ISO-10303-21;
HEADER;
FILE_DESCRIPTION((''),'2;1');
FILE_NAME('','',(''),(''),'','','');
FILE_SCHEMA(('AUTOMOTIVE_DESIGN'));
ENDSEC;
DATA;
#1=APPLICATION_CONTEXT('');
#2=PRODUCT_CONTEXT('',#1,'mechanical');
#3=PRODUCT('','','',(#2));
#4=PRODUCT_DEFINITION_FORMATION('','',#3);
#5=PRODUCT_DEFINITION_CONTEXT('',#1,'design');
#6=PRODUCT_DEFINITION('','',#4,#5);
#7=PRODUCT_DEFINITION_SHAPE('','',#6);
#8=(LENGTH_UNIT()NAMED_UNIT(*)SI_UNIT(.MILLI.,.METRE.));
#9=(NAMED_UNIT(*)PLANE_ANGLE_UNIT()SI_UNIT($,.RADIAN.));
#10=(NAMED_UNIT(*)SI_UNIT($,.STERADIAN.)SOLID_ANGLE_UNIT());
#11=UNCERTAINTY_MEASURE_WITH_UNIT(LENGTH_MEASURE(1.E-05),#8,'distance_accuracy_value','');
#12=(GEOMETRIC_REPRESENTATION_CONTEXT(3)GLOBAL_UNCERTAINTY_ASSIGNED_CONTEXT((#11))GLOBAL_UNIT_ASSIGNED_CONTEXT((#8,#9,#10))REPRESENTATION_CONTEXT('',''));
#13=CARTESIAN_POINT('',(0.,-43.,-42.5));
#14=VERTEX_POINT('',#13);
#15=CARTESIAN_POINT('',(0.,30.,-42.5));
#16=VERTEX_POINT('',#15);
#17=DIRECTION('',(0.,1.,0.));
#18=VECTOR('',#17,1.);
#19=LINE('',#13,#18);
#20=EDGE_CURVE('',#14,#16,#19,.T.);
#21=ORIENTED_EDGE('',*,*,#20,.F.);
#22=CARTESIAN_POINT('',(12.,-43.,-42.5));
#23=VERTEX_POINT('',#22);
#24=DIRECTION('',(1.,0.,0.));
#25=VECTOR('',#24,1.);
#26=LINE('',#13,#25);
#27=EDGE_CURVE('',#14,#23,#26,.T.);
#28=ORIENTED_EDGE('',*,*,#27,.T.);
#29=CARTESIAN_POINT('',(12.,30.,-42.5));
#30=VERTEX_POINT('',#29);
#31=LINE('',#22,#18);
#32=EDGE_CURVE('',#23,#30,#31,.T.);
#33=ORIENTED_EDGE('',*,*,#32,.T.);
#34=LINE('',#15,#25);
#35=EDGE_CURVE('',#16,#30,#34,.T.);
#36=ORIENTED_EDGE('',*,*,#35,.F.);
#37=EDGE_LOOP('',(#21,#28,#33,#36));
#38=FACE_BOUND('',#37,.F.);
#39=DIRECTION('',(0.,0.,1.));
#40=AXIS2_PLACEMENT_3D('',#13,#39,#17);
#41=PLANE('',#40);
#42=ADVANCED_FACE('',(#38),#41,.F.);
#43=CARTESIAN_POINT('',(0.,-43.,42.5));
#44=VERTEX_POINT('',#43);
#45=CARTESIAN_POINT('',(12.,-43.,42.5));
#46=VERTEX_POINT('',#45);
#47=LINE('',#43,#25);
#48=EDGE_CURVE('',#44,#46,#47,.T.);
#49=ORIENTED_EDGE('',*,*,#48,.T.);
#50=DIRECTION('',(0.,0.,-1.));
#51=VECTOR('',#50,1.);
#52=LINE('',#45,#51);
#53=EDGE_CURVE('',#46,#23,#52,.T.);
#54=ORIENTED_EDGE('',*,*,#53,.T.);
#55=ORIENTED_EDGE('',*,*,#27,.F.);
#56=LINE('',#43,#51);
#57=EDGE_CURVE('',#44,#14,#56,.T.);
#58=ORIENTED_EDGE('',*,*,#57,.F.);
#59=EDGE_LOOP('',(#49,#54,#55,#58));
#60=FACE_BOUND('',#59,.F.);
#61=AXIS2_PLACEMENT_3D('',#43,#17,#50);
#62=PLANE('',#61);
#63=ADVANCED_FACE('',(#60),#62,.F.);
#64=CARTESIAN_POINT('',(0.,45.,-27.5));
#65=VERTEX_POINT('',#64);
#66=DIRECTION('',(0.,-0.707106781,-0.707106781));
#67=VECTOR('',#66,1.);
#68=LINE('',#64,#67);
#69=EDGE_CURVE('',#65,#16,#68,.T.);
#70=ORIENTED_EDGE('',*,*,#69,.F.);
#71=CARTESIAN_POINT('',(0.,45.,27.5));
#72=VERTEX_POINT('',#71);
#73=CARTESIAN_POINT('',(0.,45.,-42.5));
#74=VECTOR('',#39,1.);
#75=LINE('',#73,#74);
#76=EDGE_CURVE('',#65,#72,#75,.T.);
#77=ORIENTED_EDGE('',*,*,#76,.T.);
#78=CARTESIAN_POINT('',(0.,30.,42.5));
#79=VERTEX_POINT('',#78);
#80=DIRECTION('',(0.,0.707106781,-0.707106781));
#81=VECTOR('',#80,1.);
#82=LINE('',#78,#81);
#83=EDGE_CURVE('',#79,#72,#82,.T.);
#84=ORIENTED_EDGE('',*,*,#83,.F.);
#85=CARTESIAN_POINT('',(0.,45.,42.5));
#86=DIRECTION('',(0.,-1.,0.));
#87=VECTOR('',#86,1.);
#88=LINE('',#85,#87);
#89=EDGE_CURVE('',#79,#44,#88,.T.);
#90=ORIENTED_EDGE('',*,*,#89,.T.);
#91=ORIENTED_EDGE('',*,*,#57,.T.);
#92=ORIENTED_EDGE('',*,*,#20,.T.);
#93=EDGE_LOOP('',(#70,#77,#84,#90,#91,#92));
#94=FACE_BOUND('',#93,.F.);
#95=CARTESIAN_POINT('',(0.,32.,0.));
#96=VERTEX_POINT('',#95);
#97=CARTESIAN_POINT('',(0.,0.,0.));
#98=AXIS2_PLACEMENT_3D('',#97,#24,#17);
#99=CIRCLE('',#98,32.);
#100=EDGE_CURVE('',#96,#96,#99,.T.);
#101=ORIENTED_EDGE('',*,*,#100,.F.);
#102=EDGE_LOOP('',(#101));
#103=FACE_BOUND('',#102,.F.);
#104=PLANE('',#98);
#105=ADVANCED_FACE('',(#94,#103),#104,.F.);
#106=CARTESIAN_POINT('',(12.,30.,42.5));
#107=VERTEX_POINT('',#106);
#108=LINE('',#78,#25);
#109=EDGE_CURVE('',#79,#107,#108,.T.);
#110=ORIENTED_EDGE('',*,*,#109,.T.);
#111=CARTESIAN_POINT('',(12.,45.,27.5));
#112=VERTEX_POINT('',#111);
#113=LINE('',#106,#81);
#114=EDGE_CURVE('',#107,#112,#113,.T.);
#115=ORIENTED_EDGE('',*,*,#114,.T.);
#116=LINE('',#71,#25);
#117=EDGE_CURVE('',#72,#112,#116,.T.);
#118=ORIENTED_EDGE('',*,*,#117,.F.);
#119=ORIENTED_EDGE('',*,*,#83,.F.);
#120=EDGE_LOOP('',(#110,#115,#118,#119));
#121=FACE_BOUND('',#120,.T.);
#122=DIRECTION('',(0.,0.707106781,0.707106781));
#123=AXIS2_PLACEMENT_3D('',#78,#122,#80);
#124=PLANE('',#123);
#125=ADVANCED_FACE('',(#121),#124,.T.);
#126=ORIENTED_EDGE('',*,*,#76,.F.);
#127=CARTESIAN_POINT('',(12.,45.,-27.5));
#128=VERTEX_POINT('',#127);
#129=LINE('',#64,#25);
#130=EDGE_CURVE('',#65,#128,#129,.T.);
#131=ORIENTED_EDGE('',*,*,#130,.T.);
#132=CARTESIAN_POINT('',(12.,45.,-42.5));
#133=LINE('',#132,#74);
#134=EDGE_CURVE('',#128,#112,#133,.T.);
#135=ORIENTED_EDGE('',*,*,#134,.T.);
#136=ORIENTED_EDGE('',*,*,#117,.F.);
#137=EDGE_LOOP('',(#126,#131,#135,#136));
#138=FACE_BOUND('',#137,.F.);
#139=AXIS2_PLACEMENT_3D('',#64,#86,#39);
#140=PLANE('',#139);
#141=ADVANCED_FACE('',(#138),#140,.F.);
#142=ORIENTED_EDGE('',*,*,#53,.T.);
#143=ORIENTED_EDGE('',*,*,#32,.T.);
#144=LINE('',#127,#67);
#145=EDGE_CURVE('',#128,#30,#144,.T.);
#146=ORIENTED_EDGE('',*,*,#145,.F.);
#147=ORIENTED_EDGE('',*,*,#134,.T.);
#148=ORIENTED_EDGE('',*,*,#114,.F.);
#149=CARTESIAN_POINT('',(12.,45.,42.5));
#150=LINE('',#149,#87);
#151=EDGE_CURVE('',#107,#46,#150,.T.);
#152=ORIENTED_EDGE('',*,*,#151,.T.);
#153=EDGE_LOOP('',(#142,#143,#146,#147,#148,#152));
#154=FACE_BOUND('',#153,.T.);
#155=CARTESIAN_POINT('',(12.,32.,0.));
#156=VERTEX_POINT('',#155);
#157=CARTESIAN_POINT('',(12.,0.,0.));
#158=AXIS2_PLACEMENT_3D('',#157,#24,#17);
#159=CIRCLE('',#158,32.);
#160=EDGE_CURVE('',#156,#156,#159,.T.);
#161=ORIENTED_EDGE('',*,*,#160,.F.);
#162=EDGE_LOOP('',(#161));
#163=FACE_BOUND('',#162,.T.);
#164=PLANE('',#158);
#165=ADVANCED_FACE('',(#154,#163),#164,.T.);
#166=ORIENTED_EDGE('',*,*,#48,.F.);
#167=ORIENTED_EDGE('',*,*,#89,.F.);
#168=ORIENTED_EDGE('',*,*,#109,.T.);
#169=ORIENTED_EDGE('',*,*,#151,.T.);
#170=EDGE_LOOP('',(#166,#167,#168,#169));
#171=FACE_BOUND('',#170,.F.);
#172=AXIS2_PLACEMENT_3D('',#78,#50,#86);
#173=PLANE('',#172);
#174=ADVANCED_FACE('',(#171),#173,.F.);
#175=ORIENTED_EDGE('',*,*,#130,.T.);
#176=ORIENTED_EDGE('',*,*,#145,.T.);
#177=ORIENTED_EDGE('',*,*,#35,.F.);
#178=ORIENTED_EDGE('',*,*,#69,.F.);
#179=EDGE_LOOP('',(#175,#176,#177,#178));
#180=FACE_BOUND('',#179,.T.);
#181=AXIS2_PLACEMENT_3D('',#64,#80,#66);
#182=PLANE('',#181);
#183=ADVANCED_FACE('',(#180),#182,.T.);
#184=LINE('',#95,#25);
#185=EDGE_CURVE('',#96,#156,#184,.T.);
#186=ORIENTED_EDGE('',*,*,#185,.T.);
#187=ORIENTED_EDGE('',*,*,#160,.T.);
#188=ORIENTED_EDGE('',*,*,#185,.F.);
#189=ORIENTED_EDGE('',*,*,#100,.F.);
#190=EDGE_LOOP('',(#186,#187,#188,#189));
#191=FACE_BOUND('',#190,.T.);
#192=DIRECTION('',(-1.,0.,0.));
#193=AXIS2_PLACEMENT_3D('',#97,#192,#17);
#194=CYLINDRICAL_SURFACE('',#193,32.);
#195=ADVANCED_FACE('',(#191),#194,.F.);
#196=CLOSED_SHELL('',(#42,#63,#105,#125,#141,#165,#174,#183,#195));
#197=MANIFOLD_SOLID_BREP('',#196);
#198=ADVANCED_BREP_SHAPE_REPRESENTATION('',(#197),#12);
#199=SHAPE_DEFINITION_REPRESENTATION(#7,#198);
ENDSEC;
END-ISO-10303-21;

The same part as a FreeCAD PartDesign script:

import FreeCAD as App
import Part
import Sketcher

V = App.Vector
Q = App.Units.Quantity

doc = App.newDocument("Part")
body = doc.addObject("PartDesign::Body", "Body")

# Sketch on YZ plane
sketch1 = body.newObject("Sketcher::SketchObject", "Sketch")
sketch1.AttachmentSupport = (doc.getObject("YZ_Plane"), [""])
sketch1.MapMode = "FlatFace"
sketch1.addGeometry([
    Part.LineSegment(V(45, 28, 0), V(30, 42, 0)),  # 0
    Part.LineSegment(V(30, 42, 0), V(-43, 42, 0)),  # 1
    Part.LineSegment(V(-43, 42, 0), V(-43, -42, 0)),  # 2
    Part.LineSegment(V(-43, -42, 0), V(30, -42, 0)),  # 3
    Part.LineSegment(V(30, -42, 0), V(45, -28, 0)),  # 4
    Part.LineSegment(V(45, -28, 0), V(45, 28, 0)),  # 5
    Part.Circle(V(0, 0, 0), V(0, 0, 1), 32),  # 6
], False)
sketch1.addConstraint([
    Sketcher.Constraint("Coincident", 0, 2, 1, 1),
    Sketcher.Constraint("Coincident", 1, 2, 2, 1),
    Sketcher.Constraint("Coincident", 2, 2, 3, 1),
    Sketcher.Constraint("Coincident", 3, 2, 4, 1),
    Sketcher.Constraint("Coincident", 4, 2, 5, 1),
    Sketcher.Constraint("Coincident", 5, 2, 0, 1),
    Sketcher.Constraint("Horizontal", 1),
    Sketcher.Constraint("Vertical", 2),
    Sketcher.Constraint("Horizontal", 3),
    Sketcher.Constraint("Vertical", 5),
    Sketcher.Constraint("Coincident", 6, 3, -1, 1),
    Sketcher.Constraint("Symmetric", 0, 2, 3, 2, -1),
    Sketcher.Constraint("Perpendicular", 0, 4),
    Sketcher.Constraint("Equal", 0, 4),
    Sketcher.Constraint("Diameter", 6, Q("64 mm")),
    Sketcher.Constraint("DistanceY", 2, 2, 2, 1, Q("85 mm")),
    Sketcher.Constraint("DistanceX", 1, 2, -1, 1, Q("43 mm")),
    Sketcher.Constraint("DistanceX", -1, 1, 4, 2, Q("45 mm")),
    Sketcher.Constraint("DistanceX", 3, 2, 4, 2, Q("15 mm")),
])
pad1 = body.newObject("PartDesign::Pad", "Pad")
pad1.Profile = sketch1
pad1.Length = 12

doc.recompute()
